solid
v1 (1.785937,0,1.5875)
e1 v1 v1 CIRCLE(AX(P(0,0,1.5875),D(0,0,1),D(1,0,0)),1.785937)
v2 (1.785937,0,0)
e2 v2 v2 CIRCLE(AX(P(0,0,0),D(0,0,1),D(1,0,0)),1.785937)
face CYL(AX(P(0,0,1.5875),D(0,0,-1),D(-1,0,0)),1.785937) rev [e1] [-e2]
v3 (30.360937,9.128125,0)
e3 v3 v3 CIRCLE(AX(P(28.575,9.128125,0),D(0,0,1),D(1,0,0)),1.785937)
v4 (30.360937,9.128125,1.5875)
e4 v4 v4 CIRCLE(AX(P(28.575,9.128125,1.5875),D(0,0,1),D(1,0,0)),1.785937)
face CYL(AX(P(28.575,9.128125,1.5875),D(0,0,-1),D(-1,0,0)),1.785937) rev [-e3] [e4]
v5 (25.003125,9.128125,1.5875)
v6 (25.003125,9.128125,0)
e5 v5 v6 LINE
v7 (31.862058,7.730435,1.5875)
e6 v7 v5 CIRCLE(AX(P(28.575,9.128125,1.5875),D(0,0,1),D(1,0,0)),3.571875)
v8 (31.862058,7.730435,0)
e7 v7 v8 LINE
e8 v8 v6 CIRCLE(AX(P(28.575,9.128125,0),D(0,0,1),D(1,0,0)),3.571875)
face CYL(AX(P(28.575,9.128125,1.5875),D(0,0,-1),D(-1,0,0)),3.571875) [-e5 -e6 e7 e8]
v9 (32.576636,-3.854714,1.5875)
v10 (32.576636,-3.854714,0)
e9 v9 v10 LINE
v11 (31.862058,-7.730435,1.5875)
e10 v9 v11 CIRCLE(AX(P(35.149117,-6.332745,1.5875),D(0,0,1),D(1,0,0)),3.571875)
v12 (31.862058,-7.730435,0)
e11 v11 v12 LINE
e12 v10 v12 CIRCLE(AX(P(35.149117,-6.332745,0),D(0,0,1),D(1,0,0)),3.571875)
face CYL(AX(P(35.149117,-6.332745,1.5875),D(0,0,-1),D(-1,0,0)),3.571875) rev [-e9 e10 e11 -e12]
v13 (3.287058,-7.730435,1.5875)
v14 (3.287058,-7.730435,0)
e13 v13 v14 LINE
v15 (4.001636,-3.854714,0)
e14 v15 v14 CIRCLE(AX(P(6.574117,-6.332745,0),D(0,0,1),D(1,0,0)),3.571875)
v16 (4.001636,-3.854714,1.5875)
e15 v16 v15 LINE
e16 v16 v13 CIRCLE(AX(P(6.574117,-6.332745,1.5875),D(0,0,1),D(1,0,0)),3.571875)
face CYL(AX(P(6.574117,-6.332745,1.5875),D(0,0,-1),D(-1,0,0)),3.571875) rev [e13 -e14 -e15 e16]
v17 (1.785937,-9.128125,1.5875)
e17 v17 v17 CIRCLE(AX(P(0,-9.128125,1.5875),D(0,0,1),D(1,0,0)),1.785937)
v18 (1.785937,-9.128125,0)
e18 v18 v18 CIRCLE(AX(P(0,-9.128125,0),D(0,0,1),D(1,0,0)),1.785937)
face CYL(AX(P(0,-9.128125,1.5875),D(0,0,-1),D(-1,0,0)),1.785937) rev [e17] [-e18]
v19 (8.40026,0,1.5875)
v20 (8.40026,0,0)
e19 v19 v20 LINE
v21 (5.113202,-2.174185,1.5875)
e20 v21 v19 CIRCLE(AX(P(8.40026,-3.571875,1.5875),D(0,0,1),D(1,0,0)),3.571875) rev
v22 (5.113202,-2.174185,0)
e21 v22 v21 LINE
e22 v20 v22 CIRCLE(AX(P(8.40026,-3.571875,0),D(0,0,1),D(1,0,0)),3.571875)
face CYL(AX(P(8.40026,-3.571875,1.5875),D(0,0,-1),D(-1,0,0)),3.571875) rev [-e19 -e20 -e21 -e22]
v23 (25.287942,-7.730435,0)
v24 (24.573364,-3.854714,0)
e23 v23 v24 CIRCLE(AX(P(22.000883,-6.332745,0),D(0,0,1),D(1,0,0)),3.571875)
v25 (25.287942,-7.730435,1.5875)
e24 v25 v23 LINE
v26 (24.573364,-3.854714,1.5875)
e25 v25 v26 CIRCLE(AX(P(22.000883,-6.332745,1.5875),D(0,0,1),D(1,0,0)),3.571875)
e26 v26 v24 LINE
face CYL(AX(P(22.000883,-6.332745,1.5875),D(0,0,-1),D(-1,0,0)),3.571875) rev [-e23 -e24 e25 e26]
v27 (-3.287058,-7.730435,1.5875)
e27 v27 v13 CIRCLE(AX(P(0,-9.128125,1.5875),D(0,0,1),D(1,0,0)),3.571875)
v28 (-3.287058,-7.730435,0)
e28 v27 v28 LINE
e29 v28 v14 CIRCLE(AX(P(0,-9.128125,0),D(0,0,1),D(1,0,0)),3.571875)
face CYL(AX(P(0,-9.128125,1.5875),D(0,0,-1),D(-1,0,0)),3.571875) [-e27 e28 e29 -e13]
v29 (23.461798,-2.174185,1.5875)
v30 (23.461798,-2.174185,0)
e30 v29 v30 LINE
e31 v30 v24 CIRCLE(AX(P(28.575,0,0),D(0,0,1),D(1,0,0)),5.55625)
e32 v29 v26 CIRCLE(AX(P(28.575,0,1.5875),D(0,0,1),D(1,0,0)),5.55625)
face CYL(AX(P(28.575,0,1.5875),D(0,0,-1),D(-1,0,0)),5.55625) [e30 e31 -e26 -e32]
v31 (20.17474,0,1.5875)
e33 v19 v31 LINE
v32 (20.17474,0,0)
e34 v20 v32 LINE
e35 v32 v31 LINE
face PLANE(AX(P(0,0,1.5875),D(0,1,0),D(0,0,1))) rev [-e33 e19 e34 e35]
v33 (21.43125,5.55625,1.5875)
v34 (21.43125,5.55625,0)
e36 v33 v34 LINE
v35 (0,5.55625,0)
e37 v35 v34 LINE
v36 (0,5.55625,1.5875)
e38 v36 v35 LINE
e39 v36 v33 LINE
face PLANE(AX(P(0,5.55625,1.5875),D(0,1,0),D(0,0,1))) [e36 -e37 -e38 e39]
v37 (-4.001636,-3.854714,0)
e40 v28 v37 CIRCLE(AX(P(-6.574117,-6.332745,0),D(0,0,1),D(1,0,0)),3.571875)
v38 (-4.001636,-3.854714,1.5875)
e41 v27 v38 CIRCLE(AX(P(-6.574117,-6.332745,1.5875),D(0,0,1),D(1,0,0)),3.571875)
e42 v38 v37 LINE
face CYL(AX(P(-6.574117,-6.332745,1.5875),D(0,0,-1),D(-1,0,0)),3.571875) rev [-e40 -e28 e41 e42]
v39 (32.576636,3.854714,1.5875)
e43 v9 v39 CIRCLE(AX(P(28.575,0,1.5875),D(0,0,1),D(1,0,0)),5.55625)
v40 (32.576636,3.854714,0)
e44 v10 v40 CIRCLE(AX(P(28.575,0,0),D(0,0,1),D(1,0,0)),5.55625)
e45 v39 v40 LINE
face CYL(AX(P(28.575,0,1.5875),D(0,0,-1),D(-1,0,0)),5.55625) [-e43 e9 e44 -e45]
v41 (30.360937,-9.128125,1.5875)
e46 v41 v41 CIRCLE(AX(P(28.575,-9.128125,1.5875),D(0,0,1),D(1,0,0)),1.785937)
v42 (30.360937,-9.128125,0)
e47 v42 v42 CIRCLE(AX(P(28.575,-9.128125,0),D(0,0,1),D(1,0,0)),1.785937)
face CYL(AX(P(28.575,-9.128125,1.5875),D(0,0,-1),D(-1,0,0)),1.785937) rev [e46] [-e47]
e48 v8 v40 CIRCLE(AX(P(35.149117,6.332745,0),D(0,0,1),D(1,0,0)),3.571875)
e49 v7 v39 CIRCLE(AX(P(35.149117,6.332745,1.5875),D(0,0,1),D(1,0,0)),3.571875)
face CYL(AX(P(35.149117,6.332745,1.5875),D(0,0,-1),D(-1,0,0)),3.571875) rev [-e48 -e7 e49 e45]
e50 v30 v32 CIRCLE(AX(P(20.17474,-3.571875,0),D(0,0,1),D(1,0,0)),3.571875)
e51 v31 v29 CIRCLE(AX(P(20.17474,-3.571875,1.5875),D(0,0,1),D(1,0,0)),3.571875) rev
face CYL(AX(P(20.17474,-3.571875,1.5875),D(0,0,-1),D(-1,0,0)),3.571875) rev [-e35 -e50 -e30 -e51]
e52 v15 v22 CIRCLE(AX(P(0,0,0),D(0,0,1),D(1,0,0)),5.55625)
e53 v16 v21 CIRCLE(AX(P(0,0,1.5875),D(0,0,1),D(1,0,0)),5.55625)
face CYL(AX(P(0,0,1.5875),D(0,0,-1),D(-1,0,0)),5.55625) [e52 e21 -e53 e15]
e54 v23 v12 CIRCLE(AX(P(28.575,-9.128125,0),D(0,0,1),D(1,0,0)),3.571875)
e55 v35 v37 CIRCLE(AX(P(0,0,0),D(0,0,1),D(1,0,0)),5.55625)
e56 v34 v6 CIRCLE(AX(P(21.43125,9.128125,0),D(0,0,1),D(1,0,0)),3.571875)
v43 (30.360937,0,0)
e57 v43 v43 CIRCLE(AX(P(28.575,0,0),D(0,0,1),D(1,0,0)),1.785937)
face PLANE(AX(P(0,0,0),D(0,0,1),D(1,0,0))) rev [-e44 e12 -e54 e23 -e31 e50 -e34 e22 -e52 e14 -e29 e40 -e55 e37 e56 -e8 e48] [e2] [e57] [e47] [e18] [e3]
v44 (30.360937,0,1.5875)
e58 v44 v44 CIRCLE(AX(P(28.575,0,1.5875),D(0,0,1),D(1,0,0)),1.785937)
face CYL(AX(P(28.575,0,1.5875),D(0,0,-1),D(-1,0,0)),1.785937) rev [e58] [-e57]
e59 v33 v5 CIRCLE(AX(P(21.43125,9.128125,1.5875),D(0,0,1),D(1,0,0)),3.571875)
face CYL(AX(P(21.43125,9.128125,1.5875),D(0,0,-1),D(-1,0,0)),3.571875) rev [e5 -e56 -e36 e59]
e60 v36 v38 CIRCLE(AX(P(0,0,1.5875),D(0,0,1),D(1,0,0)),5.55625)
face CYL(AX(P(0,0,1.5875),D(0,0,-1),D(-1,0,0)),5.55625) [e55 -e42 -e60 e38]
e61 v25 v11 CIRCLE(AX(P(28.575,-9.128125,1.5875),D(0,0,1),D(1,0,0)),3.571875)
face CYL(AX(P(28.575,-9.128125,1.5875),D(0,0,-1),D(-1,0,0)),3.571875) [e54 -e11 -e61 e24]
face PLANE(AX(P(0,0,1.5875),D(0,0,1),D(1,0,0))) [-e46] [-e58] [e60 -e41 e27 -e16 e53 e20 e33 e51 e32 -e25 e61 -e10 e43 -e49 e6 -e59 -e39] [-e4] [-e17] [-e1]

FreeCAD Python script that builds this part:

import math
import FreeCAD as App
import Part
import Sketcher
from FreeCAD import Vector
Q = App.Units.Quantity


def edges_at(feature, points):
    """Names of the edges that pass closest to the given points."""
    edges = feature.Shape.Edges
    near = lambda p: min(range(len(edges)), key=lambda i: edges[i].distToShape(Part.Vertex(*p))[0])
    return sorted({f"Edge{near(p) + 1}" for p in points})

doc = App.newDocument("Part")
body = doc.addObject("PartDesign::Body", "Body")

# Sketch on XY plane
sketch1 = body.newObject("Sketcher::SketchObject", "Sketch")
sketch1.AttachmentSupport = (doc.getObject("XY_Plane"), [""])
sketch1.MapMode = "FlatFace"
sketch1.addGeometry(Part.ArcOfCircle(Part.Circle(Vector(0, 0, 0), Vector(0, 0, 1), 5.55625), math.radians(-43.928634), math.radians(0)), False)
sketch1.addGeometry(Part.LineSegment(Vector(5.55625, 0, 0), Vector(23.01875, 0, 0)), False)
sketch1.addGeometry(Part.ArcOfCircle(Part.Circle(Vector(28.575, 0, 0), Vector(0, 0, 1), 5.55625), math.radians(180), math.radians(223.928632)), False)
sketch1.addGeometry(Part.ArcOfCircle(Part.Circle(Vector(22.000883, -6.332745, 0), Vector(0, 0, 1), 3.571875), math.radians(-23.035684), math.radians(43.928632)), False)
sketch1.addGeometry(Part.ArcOfCircle(Part.Circle(Vector(28.575, -9.128125, 0), Vector(0, 0, 1), 3.571875), math.radians(156.964316), math.radians(383.035684)), False)
sketch1.addGeometry(Part.ArcOfCircle(Part.Circle(Vector(35.149117, -6.332745, 0), Vector(0, 0, 1), 3.571875), math.radians(136.071371), math.radians(203.035684)), False)
sketch1.addGeometry(Part.ArcOfCircle(Part.Circle(Vector(28.575, 0, 0), Vector(0, 0, 1), 5.55625), math.radians(-43.928634), math.radians(43.928633)), False)
sketch1.addGeometry(Part.ArcOfCircle(Part.Circle(Vector(35.149117, 6.332745, 0), Vector(0, 0, 1), 3.571875), math.radians(156.964317), math.radians(223.92863)), False)
sketch1.addGeometry(Part.ArcOfCircle(Part.Circle(Vector(28.575, 9.128125, 0), Vector(0, 0, 1), 3.571875), math.radians(-23.035685), math.radians(180)), False)
sketch1.addGeometry(Part.ArcOfCircle(Part.Circle(Vector(21.43125, 9.128125, 0), Vector(0, 0, 1), 3.571875), math.radians(-90), math.radians(0)), False)
sketch1.addGeometry(Part.LineSegment(Vector(21.43125, 5.55625, 0), Vector(0, 5.55625, 0)), False)
sketch1.addGeometry(Part.ArcOfCircle(Part.Circle(Vector(0, 0, 0), Vector(0, 0, 1), 5.55625), math.radians(90), math.radians(223.928634)), False)
sketch1.addGeometry(Part.ArcOfCircle(Part.Circle(Vector(-6.574117, -6.332745, 0), Vector(0, 0, 1), 3.571875), math.radians(-23.035683), math.radians(43.928628)), False)
sketch1.addGeometry(Part.ArcOfCircle(Part.Circle(Vector(0, -9.128125, 0), Vector(0, 0, 1), 3.571875), math.radians(156.964315), math.radians(383.035686)), False)
sketch1.addGeometry(Part.ArcOfCircle(Part.Circle(Vector(6.574117, -6.332745, 0), Vector(0, 0, 1), 3.571875), math.radians(136.071372), math.radians(203.035682)), False)
sketch1.addGeometry(Part.Circle(Vector(0, -9.128125, 0), Vector(0, 0, 1), 1.785937), False)
sketch1.addGeometry(Part.Circle(Vector(28.575, -9.128125, 0), Vector(0, 0, 1), 1.785937), False)
sketch1.addGeometry(Part.Circle(Vector(0, 0, 0), Vector(0, 0, 1), 1.785937), False)
sketch1.addGeometry(Part.Circle(Vector(28.575, 0, 0), Vector(0, 0, 1), 1.785937), False)
sketch1.addGeometry(Part.Circle(Vector(28.575, 9.128125, 0), Vector(0, 0, 1), 1.785937), False)
sketch1.addConstraint(Sketcher.Constraint("Coincident", 0, 2, 1, 1))
sketch1.addConstraint(Sketcher.Constraint("Coincident", 1, 2, 2, 1))
sketch1.addConstraint(Sketcher.Constraint("Tangent", 2, 2, 3, 2))
sketch1.addConstraint(Sketcher.Constraint("Tangent", 3, 1, 4, 1))
sketch1.addConstraint(Sketcher.Constraint("Tangent", 4, 2, 5, 2))
sketch1.addConstraint(Sketcher.Constraint("Tangent", 5, 1, 6, 1))
sketch1.addConstraint(Sketcher.Constraint("Tangent", 6, 2, 7, 2))
sketch1.addConstraint(Sketcher.Constraint("Tangent", 7, 1, 8, 1))
sketch1.addConstraint(Sketcher.Constraint("Tangent", 8, 2, 9, 2))
sketch1.addConstraint(Sketcher.Constraint("Tangent", 9, 1, 10, 1))
sketch1.addConstraint(Sketcher.Constraint("Tangent", 10, 2, 11, 1))
sketch1.addConstraint(Sketcher.Constraint("Tangent", 11, 2, 12, 2))
sketch1.addConstraint(Sketcher.Constraint("Tangent", 12, 1, 13, 1))
sketch1.addConstraint(Sketcher.Constraint("Tangent", 13, 2, 14, 2))
sketch1.addConstraint(Sketcher.Constraint("Tangent", 14, 1, 0, 1))
sketch1.addConstraint(Sketcher.Constraint("Horizontal", 1))
sketch1.addConstraint(Sketcher.Constraint("Horizontal", 10))
sketch1.addConstraint(Sketcher.Constraint("Coincident", 0, 3, -1, 1))
sketch1.addConstraint(Sketcher.Constraint("Coincident", 11, 3, -1, 1))
sketch1.addConstraint(Sketcher.Constraint("Coincident", 17, 3, -1, 1))
sketch1.addConstraint(Sketcher.Constraint("Coincident", 6, 3, 2, 3))
sketch1.addConstraint(Sketcher.Constraint("Coincident", 15, 3, 13, 3))
sketch1.addConstraint(Sketcher.Constraint("Coincident", 16, 3, 4, 3))
sketch1.addConstraint(Sketcher.Constraint("Coincident", 18, 3, 2, 3))
sketch1.addConstraint(Sketcher.Constraint("Coincident", 19, 3, 8, 3))
sketch1.addConstraint(Sketcher.Constraint("Equal", 0, 2))
sketch1.addConstraint(Sketcher.Constraint("Equal", 3, 4))
sketch1.addConstraint(Sketcher.Constraint("Equal", 4, 5))
sketch1.addConstraint(Sketcher.Constraint("Equal", 2, 6))
sketch1.addConstraint(Sketcher.Constraint("Equal", 5, 7))
sketch1.addConstraint(Sketcher.Constraint("Equal", 7, 8))
sketch1.addConstraint(Sketcher.Constraint("Equal", 8, 9))
sketch1.addConstraint(Sketcher.Constraint("Equal", 6, 11))
sketch1.addConstraint(Sketcher.Constraint("Equal", 9, 12))
sketch1.addConstraint(Sketcher.Constraint("Equal", 12, 13))
sketch1.addConstraint(Sketcher.Constraint("Equal", 13, 14))
sketch1.addConstraint(Sketcher.Constraint("Equal", 15, 16))
sketch1.addConstraint(Sketcher.Constraint("Equal", 16, 17))
sketch1.addConstraint(Sketcher.Constraint("Equal", 17, 18))
sketch1.addConstraint(Sketcher.Constraint("Equal", 18, 19))
sketch1.addConstraint(Sketcher.Constraint("Symmetric", 5, 3, 7, 3, -1))
sketch1.addConstraint(Sketcher.Constraint("PointOnObject", 13, 3, -2))
sketch1.addConstraint(Sketcher.Constraint("PointOnObject", 0, 2, -1))
sketch1.addConstraint(Sketcher.Constraint("Horizontal", 3, 3, 5, 3))
sketch1.addConstraint(Sketcher.Constraint("Horizontal", 8, 3, 9, 3))
sketch1.addConstraint(Sketcher.Constraint("Horizontal", 5, 3, 12, 3))
sketch1.addConstraint(Sketcher.Constraint("Vertical", 6, 3, 8, 3))
sketch1.addConstraint(Sketcher.Constraint("Diameter", 15, Q("0.140625 in")))
sketch1.addConstraint(Sketcher.Constraint("Radius", 0, Q("0.21875 in")))
sketch1.addConstraint(Sketcher.Constraint("Radius", 3, Q("0.140625 in")))
sketch1.addConstraint(Sketcher.Constraint("DistanceX", 1, 1, 1, 2, Q("0.6875 in")))
pad1 = body.newObject("PartDesign::Pad", "Pad")
pad1.Profile = sketch1
pad1.Length = Q("0.0625 in")
doc.recompute()

fillet = body.newObject("PartDesign::Fillet", "Fillet")
fillet.Base = (pad1, edges_at(pad1, [(23.019, 0, 0.794), (5.556, 0, 0.794)]))
fillet.Radius = Q("0.140625 in")

doc.recompute()
